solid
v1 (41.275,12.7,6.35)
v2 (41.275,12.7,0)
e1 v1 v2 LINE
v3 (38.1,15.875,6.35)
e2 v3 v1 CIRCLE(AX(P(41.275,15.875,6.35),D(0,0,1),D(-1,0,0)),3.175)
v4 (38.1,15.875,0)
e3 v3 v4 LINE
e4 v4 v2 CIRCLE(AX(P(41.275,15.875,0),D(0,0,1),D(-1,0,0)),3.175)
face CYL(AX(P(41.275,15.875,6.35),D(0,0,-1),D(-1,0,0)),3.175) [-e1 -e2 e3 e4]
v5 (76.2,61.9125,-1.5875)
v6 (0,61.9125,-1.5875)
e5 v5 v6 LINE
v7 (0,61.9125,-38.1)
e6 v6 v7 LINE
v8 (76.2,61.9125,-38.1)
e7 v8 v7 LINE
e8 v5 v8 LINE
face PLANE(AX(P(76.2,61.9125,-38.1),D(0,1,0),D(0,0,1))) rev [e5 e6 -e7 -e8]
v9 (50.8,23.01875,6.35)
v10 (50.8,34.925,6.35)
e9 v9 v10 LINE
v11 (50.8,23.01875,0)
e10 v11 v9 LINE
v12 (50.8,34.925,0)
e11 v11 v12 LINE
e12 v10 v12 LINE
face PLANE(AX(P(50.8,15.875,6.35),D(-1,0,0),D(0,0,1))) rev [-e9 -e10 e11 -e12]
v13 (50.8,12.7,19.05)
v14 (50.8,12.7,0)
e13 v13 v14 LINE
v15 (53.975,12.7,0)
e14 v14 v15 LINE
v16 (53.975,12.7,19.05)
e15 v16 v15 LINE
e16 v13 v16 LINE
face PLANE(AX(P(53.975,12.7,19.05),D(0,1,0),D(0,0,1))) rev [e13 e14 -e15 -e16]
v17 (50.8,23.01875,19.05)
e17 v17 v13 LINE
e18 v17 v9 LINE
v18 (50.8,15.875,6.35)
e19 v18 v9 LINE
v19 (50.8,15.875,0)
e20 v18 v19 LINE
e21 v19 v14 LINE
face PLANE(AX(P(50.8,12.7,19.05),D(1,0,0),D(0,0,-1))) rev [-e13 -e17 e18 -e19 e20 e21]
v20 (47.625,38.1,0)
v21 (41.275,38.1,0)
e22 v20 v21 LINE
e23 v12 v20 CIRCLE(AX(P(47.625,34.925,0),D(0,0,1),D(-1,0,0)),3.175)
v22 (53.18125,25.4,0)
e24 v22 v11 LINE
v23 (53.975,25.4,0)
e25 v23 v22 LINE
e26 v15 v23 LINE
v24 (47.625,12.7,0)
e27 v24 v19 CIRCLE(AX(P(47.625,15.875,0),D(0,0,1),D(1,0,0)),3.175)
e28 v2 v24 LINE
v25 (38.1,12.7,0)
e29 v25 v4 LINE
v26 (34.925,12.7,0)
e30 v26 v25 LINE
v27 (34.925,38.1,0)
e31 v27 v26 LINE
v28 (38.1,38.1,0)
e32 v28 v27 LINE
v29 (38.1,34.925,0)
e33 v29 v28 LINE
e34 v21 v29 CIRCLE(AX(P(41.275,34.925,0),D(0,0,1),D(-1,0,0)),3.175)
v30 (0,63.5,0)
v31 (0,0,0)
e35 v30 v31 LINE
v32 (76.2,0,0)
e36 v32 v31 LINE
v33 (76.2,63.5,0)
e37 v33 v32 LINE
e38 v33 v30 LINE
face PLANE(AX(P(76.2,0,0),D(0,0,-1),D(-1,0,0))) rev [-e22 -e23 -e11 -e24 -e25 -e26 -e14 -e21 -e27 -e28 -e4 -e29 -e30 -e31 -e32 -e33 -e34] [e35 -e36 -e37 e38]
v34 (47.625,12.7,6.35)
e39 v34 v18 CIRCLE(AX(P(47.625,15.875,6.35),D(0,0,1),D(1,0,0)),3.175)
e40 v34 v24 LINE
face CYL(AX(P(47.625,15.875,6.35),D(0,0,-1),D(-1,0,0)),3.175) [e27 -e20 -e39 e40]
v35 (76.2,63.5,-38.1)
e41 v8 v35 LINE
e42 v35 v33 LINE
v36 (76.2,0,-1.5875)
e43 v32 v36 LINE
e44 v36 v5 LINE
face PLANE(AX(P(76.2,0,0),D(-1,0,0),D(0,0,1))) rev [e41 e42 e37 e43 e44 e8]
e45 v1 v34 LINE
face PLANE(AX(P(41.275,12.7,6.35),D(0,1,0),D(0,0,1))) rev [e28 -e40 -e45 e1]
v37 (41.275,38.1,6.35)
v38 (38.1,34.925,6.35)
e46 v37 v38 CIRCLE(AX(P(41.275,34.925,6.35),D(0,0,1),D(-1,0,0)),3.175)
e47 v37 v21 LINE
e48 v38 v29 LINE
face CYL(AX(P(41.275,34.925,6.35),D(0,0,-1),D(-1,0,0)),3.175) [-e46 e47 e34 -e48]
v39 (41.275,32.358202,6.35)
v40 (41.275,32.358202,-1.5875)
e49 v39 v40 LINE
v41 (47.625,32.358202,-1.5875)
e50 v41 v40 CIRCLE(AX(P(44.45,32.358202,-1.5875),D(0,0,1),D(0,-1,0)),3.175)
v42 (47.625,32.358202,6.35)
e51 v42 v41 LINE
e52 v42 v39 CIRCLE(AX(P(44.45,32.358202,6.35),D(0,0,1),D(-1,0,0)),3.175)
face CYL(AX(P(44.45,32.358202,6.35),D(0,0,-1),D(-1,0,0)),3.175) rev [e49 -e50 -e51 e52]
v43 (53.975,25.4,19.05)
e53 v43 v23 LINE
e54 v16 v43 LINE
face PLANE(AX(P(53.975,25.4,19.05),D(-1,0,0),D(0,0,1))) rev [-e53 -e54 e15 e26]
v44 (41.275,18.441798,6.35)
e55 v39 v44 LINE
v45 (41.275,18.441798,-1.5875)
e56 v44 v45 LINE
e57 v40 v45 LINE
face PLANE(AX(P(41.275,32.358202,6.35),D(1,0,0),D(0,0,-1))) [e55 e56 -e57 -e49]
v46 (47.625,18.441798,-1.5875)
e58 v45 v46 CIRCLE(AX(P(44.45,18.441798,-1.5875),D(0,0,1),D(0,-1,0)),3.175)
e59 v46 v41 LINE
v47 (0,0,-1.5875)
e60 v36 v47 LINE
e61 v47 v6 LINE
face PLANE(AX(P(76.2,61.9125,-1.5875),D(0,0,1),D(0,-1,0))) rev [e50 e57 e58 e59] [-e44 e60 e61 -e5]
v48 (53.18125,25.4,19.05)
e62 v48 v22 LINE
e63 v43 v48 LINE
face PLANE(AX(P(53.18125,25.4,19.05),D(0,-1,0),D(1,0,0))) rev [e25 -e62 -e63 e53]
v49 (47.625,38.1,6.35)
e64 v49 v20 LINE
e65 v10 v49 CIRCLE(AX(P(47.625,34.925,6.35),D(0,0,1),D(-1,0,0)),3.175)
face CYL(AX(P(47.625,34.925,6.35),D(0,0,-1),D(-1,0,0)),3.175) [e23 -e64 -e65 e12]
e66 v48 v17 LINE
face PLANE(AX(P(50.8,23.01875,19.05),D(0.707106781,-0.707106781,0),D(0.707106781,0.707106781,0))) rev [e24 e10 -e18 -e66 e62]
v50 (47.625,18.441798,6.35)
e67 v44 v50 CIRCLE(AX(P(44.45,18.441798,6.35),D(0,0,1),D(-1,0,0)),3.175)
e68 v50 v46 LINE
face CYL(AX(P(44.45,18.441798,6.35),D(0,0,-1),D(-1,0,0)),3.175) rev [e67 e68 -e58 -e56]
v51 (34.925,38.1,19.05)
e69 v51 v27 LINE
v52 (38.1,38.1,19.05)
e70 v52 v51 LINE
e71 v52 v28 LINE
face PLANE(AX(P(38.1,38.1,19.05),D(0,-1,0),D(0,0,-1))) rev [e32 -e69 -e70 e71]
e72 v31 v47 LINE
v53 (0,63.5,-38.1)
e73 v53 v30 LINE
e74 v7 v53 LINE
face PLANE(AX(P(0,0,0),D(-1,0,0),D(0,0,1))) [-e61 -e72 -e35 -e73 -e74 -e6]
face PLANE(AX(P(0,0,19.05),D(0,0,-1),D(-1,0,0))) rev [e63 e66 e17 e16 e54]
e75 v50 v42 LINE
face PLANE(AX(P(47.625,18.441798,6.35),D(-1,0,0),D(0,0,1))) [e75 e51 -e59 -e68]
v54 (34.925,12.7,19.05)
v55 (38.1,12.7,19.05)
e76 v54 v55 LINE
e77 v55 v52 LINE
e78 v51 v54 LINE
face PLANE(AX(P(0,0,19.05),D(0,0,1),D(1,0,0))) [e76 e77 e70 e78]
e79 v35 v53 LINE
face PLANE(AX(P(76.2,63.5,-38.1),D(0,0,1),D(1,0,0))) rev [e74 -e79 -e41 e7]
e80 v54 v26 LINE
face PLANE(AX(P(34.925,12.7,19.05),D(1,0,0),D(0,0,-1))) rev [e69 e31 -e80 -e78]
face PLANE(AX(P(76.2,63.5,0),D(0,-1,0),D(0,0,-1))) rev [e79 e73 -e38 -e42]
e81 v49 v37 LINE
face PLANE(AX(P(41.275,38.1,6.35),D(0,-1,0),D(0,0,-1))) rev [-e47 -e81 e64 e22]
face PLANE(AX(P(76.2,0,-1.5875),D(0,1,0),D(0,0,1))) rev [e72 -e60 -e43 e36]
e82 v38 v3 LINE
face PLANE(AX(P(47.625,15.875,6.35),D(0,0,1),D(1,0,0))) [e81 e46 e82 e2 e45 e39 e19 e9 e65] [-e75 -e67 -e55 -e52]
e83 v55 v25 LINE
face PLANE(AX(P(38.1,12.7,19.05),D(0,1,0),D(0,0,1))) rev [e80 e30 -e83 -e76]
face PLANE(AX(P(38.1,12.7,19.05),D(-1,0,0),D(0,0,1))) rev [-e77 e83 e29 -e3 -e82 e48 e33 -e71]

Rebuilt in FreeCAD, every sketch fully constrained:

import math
import FreeCAD as App
import Part
import Sketcher

V = App.Vector
Q = App.Units.Quantity

doc = App.newDocument("Part")
body = doc.addObject("PartDesign::Body", "Body")

# Sketch on YZ plane
sketch1 = doc.addObject("Sketcher::SketchObject", "Sketch")
body.addObject(sketch1)
sketch1.AttachmentSupport = (doc.YZ_Plane, [""])
sketch1.MapMode = "FlatFace"
sketch1.addGeometry(Part.LineSegment(V(63.5, 0, 0), V(0, 0, 0)), False)
sketch1.addGeometry(Part.LineSegment(V(0, 0, 0), V(0, -1.6, 0)), False)
sketch1.addGeometry(Part.LineSegment(V(0, -1.6, 0), V(61.9, -1.6, 0)), False)
sketch1.addGeometry(Part.LineSegment(V(61.9, -1.6, 0), V(61.9, -38.1, 0)), False)
sketch1.addGeometry(Part.LineSegment(V(61.9, -38.1, 0), V(63.5, -38.1, 0)), False)
sketch1.addGeometry(Part.LineSegment(V(63.5, -38.1, 0), V(63.5, 0, 0)), False)
sketch1.addConstraint(Sketcher.Constraint("Coincident", 0, 2, 1, 1))
sketch1.addConstraint(Sketcher.Constraint("Coincident", 1, 2, 2, 1))
sketch1.addConstraint(Sketcher.Constraint("Coincident", 2, 2, 3, 1))
sketch1.addConstraint(Sketcher.Constraint("Coincident", 3, 2, 4, 1))
sketch1.addConstraint(Sketcher.Constraint("Coincident", 4, 2, 5, 1))
sketch1.addConstraint(Sketcher.Constraint("Coincident", 5, 2, 0, 1))
sketch1.addConstraint(Sketcher.Constraint("Horizontal", 0))
sketch1.addConstraint(Sketcher.Constraint("Vertical", 1))
sketch1.addConstraint(Sketcher.Constraint("Horizontal", 2))
sketch1.addConstraint(Sketcher.Constraint("Vertical", 3))
sketch1.addConstraint(Sketcher.Constraint("Horizontal", 4))
sketch1.addConstraint(Sketcher.Constraint("Vertical", 5))
sketch1.addConstraint(Sketcher.Constraint("Coincident", 0, 2, -1, 1))
sketch1.addConstraint(Sketcher.Constraint("Equal", 4, 1))
sketch1.addConstraint(Sketcher.Constraint("DistanceX", 0, 2, 0, 1, Q("2.5 in")))
sketch1.addConstraint(Sketcher.Constraint("DistanceY", 5, 1, 5, 2, Q("1.5 in")))
sketch1.addConstraint(Sketcher.Constraint("DistanceX", 2, 1, 2, 2, Q("2.4375 in")))
pad1 = doc.addObject("PartDesign::Pad", "Pad")
body.addObject(pad1)
pad1.Profile = sketch1
pad1.Length = Q("3 in")

# Sketch on XY plane
sketch2 = doc.addObject("Sketcher::SketchObject", "Sketch001")
body.addObject(sketch2)
sketch2.AttachmentSupport = (doc.XY_Plane, [""])
sketch2.MapMode = "FlatFace"
sketch2.addGeometry(Part.LineSegment(V(41.3, 12.7, 0), V(47.6, 12.7, 0)), False)
sketch2.addGeometry(Part.ArcOfCircle(Part.Circle(V(47.6, 15.9, 0), V(0, 0, 1), 3.2), math.radians(-90), math.radians(0)), False)
sketch2.addGeometry(Part.LineSegment(V(50.8, 15.9, 0), V(50.8, 34.9, 0)), False)
sketch2.addGeometry(Part.ArcOfCircle(Part.Circle(V(47.6, 34.9, 0), V(0, 0, 1), 3.2), math.radians(0), math.radians(90)), False)
sketch2.addGeometry(Part.LineSegment(V(47.6, 38.1, 0), V(41.3, 38.1, 0)), False)
sketch2.addGeometry(Part.ArcOfCircle(Part.Circle(V(41.3, 34.9, 0), V(0, 0, 1), 3.2), math.radians(90), math.radians(180)), False)
sketch2.addGeometry(Part.LineSegment(V(38.1, 34.9, 0), V(38.1, 15.9, 0)), False)
sketch2.addGeometry(Part.ArcOfCircle(Part.Circle(V(41.3, 15.9, 0), V(0, 0, 1), 3.2), math.radians(-180), math.radians(-90)), False)
sketch2.addGeometry(Part.LineSegment(V(41.3, 18.4, 0), V(41.3, 32.4, 0)), False)
sketch2.addGeometry(Part.ArcOfCircle(Part.Circle(V(44.5, 32.4, 0), V(0, 0, 1), 3.2), math.radians(0), math.radians(180)), False)
sketch2.addGeometry(Part.LineSegment(V(47.6, 32.4, 0), V(47.6, 18.4, 0)), False)
sketch2.addGeometry(Part.ArcOfCircle(Part.Circle(V(44.5, 18.4, 0), V(0, 0, 1), 3.2), math.radians(180), math.radians(360)), False)
sketch2.addConstraint(Sketcher.Constraint("Tangent", 0, 2, 1, 1))
sketch2.addConstraint(Sketcher.Constraint("Tangent", 1, 2, 2, 1))
sketch2.addConstraint(Sketcher.Constraint("Tangent", 2, 2, 3, 1))
sketch2.addConstraint(Sketcher.Constraint("Tangent", 3, 2, 4, 1))
sketch2.addConstraint(Sketcher.Constraint("Tangent", 4, 2, 5, 1))
sketch2.addConstraint(Sketcher.Constraint("Tangent", 5, 2, 6, 1))
sketch2.addConstraint(Sketcher.Constraint("Tangent", 6, 2, 7, 1))
sketch2.addConstraint(Sketcher.Constraint("Tangent", 7, 2, 0, 1))
sketch2.addConstraint(Sketcher.Constraint("Tangent", 8, 2, 9, 2))
sketch2.addConstraint(Sketcher.Constraint("Tangent", 9, 1, 10, 1))
sketch2.addConstraint(Sketcher.Constraint("Tangent", 10, 2, 11, 2))
sketch2.addConstraint(Sketcher.Constraint("Tangent", 11, 1, 8, 1))
sketch2.addConstraint(Sketcher.Constraint("Horizontal", 0))
sketch2.addConstraint(Sketcher.Constraint("Vertical", 2))
sketch2.addConstraint(Sketcher.Constraint("Horizontal", 4))
sketch2.addConstraint(Sketcher.Constraint("Vertical", 6))
sketch2.addConstraint(Sketcher.Constraint("Vertical", 8))
sketch2.addConstraint(Sketcher.Constraint("Vertical", 10))
sketch2.addConstraint(Sketcher.Constraint("Equal", 1, 3))
sketch2.addConstraint(Sketcher.Constraint("Equal", 3, 5))
sketch2.addConstraint(Sketcher.Constraint("Equal", 5, 7))
sketch2.addConstraint(Sketcher.Constraint("Equal", 7, 9))
sketch2.addConstraint(Sketcher.Constraint("Vertical", 7, 2, 8, 2))
sketch2.addConstraint(Sketcher.Constraint("Vertical", 3, 2, 9, 1))
sketch2.addConstraint(Sketcher.Constraint("DistanceX", -1, 1, 1, 2, Q("2 in")))
sketch2.addConstraint(Sketcher.Constraint("Radius", 1, Q("0.125 in")))
sketch2.addConstraint(Sketcher.Constraint("DistanceY", 2, 1, 2, 2, Q("0.75 in")))
sketch2.addConstraint(Sketcher.Constraint("DistanceY", -1, 1, 0, 2, Q("0.5 in")))
sketch2.addConstraint(Sketcher.Constraint("DistanceY", -1, 1, 9, 3, 32.358202))
sketch2.addConstraint(Sketcher.Constraint("DistanceY", -1, 1, 11, 3, 18.441798))
pad2 = doc.addObject("PartDesign::Pad", "Pad001")
body.addObject(pad2)
pad2.Profile = sketch2
pad2.Length = Q("0.25 in")

# Sketch on XY plane
sketch3 = doc.addObject("Sketcher::SketchObject", "Sketch002")
body.addObject(sketch3)
sketch3.AttachmentSupport = (doc.XY_Plane, [""])
sketch3.MapMode = "FlatFace"
sketch3.addGeometry(Part.LineSegment(V(47.6, 18.4, 0), V(47.6, 32.4, 0)), False)
sketch3.addGeometry(Part.ArcOfCircle(Part.Circle(V(44.5, 32.4, 0), V(0, 0, 1), 3.2), math.radians(0), math.radians(180)), False)
sketch3.addGeometry(Part.LineSegment(V(41.3, 32.4, 0), V(41.3, 18.4, 0)), False)
sketch3.addGeometry(Part.ArcOfCircle(Part.Circle(V(44.5, 18.4, 0), V(0, 0, 1), 3.2), math.radians(180), math.radians(360)), False)
sketch3.addConstraint(Sketcher.Constraint("Tangent", 0, 2, 1, 1))
sketch3.addConstraint(Sketcher.Constraint("Tangent", 1, 2, 2, 1))
sketch3.addConstraint(Sketcher.Constraint("Tangent", 2, 2, 3, 1))
sketch3.addConstraint(Sketcher.Constraint("Tangent", 3, 2, 0, 1))
sketch3.addConstraint(Sketcher.Constraint("Vertical", 0))
sketch3.addConstraint(Sketcher.Constraint("Vertical", 2))
sketch3.addConstraint(Sketcher.Constraint("Radius", 1, Q("0.125 in")))
sketch3.addConstraint(Sketcher.Constraint("DistanceX", -1, 1, 1, 3, Q("1.75 in")))
sketch3.addConstraint(Sketcher.Constraint("DistanceY", -1, 1, 1, 3, 32.358202))
sketch3.addConstraint(Sketcher.Constraint("DistanceY", -1, 1, 3, 3, 18.441798))
pocket1 = doc.addObject("PartDesign::Pocket", "Pocket")
body.addObject(pocket1)
pocket1.Profile = sketch3
pocket1.Length = Q("0.25 in")

# Sketch on XY plane
sketch4 = doc.addObject("Sketcher::SketchObject", "Sketch003")
body.addObject(sketch4)
sketch4.AttachmentSupport = (doc.XY_Plane, [""])
sketch4.MapMode = "FlatFace"
sketch4.addGeometry(Part.LineSegment(V(50.8, 23, 0), V(50.8, 12.7, 0)), False)
sketch4.addGeometry(Part.LineSegment(V(50.8, 12.7, 0), V(54, 12.7, 0)), False)
sketch4.addGeometry(Part.LineSegment(V(54, 12.7, 0), V(54, 25.4, 0)), False)
sketch4.addGeometry(Part.LineSegment(V(54, 25.4, 0), V(53.2, 25.4, 0)), False)
sketch4.addGeometry(Part.LineSegment(V(53.2, 25.4, 0), V(50.8, 23, 0)), False)
sketch4.addGeometry(Part.LineSegment(V(34.9, 38.1, 0), V(34.9, 12.7, 0)), False)
sketch4.addGeometry(Part.LineSegment(V(34.9, 12.7, 0), V(38.1, 12.7, 0)), False)
sketch4.addGeometry(Part.LineSegment(V(38.1, 12.7, 0), V(38.1, 38.1, 0)), False)
sketch4.addGeometry(Part.LineSegment(V(38.1, 38.1, 0), V(34.9, 38.1, 0)), False)
sketch4.addConstraint(Sketcher.Constraint("Coincident", 0, 2, 1, 1))
sketch4.addConstraint(Sketcher.Constraint("Coincident", 1, 2, 2, 1))
sketch4.addConstraint(Sketcher.Constraint("Coincident", 2, 2, 3, 1))
sketch4.addConstraint(Sketcher.Constraint("Coincident", 3, 2, 4, 1))
sketch4.addConstraint(Sketcher.Constraint("Coincident", 4, 2, 0, 1))
sketch4.addConstraint(Sketcher.Constraint("Coincident", 5, 2, 6, 1))
sketch4.addConstraint(Sketcher.Constraint("Coincident", 6, 2, 7, 1))
sketch4.addConstraint(Sketcher.Constraint("Coincident", 7, 2, 8, 1))
sketch4.addConstraint(Sketcher.Constraint("Coincident", 8, 2, 5, 1))
sketch4.addConstraint(Sketcher.Constraint("Vertical", 0))
sketch4.addConstraint(Sketcher.Constraint("Horizontal", 1))
sketch4.addConstraint(Sketcher.Constraint("Vertical", 2))
sketch4.addConstraint(Sketcher.Constraint("Horizontal", 3))
sketch4.addConstraint(Sketcher.Constraint("Vertical", 5))
sketch4.addConstraint(Sketcher.Constraint("Horizontal", 6))
sketch4.addConstraint(Sketcher.Constraint("Vertical", 7))
sketch4.addConstraint(Sketcher.Constraint("Horizontal", 8))
sketch4.addConstraint(Sketcher.Constraint("Horizontal", 1, 2, 5, 2))
sketch4.addConstraint(Sketcher.Constraint("Equal", 1, 6))
sketch4.addConstraint(Sketcher.Constraint("DistanceY", 5, 2, 5, 1, Q("1 in")))
sketch4.addConstraint(Sketcher.Constraint("DistanceY", 2, 1, 2, 2, Q("0.5 in")))
sketch4.addConstraint(Sketcher.Constraint("DistanceX", -1, 1, 0, 2, Q("2 in")))
sketch4.addConstraint(Sketcher.Constraint("DistanceY", -1, 1, 2, 2, Q("1 in")))
sketch4.addConstraint(Sketcher.Constraint("Angle", 4, Q("-135 deg")))
sketch4.addConstraint(Sketcher.Constraint("DistanceX", -1, 1, 6, 2, Q("1.5 in")))
sketch4.addConstraint(Sketcher.Constraint("DistanceX", 1, 1, 1, 2, Q("0.125 in")))
sketch4.addConstraint(Sketcher.Constraint("DistanceX", 3, 2, 3, 1, Q("0.03125 in")))
pad3 = doc.addObject("PartDesign::Pad", "Pad002")
body.addObject(pad3)
pad3.Profile = sketch4
pad3.Length = Q("0.75 in")

doc.recompute()
